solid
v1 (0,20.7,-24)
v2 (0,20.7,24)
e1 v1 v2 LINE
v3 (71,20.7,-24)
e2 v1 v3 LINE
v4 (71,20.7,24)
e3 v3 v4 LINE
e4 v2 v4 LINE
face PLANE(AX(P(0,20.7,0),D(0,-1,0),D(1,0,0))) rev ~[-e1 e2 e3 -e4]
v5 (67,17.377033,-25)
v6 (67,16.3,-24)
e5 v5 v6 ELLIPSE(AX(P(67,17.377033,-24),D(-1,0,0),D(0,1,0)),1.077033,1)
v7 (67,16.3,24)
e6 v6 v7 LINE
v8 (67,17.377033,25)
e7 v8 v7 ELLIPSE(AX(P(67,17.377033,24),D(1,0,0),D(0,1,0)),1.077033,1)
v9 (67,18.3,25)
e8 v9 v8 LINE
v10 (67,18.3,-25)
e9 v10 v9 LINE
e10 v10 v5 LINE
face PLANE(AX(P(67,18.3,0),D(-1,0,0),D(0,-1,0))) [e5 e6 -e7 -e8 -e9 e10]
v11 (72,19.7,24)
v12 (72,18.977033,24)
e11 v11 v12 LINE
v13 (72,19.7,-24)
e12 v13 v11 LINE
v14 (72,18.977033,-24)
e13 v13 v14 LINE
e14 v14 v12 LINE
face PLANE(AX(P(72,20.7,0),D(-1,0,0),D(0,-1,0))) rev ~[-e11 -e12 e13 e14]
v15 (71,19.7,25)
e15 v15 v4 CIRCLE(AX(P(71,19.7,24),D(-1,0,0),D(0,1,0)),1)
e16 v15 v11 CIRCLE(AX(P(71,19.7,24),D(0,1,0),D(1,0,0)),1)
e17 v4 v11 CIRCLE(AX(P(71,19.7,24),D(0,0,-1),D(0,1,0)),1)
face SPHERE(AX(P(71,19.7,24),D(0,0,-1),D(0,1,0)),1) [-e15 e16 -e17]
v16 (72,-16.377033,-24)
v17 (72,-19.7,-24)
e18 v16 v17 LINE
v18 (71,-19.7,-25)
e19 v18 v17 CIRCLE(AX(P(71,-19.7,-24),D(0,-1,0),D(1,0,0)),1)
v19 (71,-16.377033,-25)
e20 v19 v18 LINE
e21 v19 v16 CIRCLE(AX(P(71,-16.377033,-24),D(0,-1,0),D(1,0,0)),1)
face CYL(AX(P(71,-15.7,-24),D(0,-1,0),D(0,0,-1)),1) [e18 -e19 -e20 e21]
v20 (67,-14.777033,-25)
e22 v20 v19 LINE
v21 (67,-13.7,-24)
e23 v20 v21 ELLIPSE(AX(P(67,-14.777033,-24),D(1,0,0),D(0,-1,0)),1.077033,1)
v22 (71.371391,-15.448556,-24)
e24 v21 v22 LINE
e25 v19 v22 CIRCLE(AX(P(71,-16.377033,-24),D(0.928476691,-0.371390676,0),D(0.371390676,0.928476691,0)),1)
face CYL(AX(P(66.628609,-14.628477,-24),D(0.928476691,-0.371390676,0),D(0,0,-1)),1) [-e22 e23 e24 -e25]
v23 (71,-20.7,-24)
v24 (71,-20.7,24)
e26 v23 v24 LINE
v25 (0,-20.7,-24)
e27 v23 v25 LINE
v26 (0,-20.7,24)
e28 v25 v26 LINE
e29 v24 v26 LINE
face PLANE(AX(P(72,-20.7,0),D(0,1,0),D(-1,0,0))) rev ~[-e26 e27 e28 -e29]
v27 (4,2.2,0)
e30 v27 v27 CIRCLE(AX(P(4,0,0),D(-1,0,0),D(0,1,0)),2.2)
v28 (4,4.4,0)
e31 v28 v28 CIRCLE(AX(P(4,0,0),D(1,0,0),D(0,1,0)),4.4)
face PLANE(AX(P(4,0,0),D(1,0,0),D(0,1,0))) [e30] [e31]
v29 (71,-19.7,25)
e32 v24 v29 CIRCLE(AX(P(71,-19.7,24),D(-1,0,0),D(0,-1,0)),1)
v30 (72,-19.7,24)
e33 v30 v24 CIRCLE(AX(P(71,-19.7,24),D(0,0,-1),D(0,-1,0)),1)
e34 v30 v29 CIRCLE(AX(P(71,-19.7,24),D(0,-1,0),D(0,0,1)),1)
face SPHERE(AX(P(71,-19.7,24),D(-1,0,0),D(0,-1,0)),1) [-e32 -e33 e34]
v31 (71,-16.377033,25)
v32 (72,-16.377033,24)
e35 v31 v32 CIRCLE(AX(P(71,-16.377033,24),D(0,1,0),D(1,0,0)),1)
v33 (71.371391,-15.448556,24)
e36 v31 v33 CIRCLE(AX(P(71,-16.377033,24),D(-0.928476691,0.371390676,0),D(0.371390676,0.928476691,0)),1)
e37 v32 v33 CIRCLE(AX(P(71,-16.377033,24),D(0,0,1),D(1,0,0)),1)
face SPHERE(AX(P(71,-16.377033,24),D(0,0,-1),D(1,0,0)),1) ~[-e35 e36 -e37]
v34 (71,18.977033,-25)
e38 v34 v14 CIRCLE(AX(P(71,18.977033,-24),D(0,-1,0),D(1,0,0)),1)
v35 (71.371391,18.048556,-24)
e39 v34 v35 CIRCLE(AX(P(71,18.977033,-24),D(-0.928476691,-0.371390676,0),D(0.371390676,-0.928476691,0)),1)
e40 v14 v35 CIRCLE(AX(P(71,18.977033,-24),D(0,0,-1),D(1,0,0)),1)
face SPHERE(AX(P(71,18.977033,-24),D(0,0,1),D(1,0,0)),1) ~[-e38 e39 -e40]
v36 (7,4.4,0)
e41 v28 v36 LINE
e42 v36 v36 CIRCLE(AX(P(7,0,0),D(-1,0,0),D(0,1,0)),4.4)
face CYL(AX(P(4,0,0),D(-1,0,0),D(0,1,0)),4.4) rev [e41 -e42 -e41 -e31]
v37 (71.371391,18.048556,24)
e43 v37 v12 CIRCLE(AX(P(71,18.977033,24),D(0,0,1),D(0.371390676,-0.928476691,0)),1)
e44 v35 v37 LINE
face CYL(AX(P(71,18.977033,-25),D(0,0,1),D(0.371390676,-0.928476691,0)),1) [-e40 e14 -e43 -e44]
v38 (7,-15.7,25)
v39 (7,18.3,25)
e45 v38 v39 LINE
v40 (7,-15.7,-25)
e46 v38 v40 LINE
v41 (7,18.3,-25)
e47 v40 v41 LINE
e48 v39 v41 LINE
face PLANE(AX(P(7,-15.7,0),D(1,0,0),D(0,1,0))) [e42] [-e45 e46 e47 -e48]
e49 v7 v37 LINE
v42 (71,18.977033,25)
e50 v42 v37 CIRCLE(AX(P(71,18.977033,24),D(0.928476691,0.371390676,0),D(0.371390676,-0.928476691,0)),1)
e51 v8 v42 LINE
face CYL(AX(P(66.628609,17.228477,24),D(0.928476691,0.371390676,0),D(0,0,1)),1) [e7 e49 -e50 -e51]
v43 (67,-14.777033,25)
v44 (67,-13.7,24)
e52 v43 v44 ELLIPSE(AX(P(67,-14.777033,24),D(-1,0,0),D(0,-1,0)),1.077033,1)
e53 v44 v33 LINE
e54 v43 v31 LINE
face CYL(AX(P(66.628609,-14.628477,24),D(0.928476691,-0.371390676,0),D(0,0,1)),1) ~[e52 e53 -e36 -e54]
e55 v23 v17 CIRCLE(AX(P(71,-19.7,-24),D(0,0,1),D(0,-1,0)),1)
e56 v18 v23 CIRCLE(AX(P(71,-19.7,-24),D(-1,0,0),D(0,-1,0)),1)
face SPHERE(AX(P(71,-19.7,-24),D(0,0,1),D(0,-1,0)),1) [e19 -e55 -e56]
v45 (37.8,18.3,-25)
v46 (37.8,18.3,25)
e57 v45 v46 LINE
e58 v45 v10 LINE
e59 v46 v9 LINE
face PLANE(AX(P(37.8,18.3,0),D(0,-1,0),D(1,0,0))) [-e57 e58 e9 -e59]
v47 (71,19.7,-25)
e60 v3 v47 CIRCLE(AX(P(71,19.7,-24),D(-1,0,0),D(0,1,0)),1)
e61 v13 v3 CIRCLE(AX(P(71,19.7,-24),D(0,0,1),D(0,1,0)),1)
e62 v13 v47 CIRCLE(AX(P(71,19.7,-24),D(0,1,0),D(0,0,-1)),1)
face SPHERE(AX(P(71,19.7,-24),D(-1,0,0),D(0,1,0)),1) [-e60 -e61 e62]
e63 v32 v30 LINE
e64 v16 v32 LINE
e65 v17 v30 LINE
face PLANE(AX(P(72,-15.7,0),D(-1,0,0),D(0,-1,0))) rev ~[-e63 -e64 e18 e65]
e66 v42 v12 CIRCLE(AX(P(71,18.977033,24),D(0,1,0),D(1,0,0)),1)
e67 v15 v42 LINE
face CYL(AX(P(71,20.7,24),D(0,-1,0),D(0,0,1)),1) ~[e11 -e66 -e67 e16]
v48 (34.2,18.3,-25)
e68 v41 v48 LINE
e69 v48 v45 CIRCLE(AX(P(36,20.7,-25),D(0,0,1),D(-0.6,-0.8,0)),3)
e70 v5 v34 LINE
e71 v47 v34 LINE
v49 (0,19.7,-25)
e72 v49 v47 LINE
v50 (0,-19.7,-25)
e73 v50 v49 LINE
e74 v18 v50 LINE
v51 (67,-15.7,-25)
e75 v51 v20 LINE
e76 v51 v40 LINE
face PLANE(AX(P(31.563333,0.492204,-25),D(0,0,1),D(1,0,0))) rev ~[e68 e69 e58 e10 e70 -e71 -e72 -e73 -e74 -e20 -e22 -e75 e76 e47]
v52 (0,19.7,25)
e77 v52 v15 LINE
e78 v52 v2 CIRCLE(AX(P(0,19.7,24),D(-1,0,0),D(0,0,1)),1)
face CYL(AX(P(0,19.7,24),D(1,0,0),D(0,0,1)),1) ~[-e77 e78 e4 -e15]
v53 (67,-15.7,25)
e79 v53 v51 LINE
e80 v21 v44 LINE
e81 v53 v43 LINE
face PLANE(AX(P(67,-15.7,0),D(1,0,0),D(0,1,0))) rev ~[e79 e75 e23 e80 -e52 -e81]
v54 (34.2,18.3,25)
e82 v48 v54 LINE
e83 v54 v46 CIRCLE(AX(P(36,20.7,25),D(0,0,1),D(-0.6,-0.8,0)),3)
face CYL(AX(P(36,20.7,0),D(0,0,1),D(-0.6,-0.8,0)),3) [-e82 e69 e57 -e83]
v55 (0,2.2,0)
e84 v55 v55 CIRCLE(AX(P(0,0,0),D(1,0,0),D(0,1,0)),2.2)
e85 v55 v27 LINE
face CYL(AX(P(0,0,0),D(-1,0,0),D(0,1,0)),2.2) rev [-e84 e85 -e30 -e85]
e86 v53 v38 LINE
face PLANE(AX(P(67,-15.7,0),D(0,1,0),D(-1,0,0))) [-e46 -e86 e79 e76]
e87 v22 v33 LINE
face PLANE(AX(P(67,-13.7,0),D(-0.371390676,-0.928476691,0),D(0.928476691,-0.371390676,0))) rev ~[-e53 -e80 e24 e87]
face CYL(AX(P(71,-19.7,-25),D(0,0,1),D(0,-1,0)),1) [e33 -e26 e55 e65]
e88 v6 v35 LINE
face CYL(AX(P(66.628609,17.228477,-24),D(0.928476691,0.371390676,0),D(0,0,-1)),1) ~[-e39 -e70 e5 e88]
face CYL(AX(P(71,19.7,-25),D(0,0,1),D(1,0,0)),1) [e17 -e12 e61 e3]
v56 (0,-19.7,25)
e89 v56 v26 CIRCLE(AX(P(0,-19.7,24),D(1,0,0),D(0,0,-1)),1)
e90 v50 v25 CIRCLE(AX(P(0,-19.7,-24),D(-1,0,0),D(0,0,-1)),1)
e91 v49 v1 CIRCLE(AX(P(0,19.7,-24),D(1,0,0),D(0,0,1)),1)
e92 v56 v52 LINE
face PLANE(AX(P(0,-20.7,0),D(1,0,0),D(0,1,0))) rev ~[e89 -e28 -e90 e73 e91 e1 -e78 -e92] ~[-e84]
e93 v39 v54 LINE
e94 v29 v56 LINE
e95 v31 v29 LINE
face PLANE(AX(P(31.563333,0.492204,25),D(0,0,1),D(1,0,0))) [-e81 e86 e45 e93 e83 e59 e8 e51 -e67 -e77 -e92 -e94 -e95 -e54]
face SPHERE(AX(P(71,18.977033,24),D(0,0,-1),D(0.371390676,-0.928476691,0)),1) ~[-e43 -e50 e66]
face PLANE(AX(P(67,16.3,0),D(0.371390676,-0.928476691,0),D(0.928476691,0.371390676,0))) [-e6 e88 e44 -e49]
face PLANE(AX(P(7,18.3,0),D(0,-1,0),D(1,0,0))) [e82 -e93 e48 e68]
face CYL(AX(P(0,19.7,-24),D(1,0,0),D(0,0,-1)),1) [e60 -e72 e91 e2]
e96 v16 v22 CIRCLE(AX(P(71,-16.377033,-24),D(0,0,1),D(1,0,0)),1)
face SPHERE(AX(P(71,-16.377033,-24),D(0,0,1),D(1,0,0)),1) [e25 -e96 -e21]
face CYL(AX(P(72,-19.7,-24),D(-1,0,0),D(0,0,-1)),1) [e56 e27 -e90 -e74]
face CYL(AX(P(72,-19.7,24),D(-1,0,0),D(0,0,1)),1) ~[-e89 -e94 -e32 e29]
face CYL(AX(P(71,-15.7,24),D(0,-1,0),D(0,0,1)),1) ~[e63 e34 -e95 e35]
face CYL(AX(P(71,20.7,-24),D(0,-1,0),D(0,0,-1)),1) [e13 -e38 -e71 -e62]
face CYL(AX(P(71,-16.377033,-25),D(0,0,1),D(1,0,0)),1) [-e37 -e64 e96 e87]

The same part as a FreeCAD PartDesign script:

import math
import FreeCAD as App
import Part
import Sketcher

V = App.Vector
Q = App.Units.Quantity


def edges_at(feature, points):
    """Names of the edges that pass closest to the given points."""
    edges = feature.Shape.Edges
    near = lambda p: min(range(len(edges)), key=lambda i: edges[i].distToShape(Part.Vertex(*p))[0])
    return sorted({f"Edge{near(p) + 1}" for p in points})

doc = App.newDocument("Part")
body = doc.addObject("PartDesign::Body", "Body")

# Sketch on XY plane
sketch1 = doc.addObject("Sketcher::SketchObject", "Sketch")
body.addObject(sketch1)
sketch1.AttachmentSupport = (doc.XY_Plane, [""])
sketch1.MapMode = "FlatFace"
sketch1.addGeometry([
    Part.LineSegment(V(7, 18.3, 0), V(34.2, 18.3, 0)),  # 0
    Part.ArcOfCircle(Part.Circle(V(36, 20.7, 0), V(0, 0, 1), 3), math.radians(-127), math.radians(-53)),  # 1
    Part.LineSegment(V(37.8, 18.3, 0), V(67, 18.3, 0)),  # 2
    Part.LineSegment(V(67, 18.3, 0), V(67, 16.3, 0)),  # 3
    Part.LineSegment(V(67, 16.3, 0), V(72, 18.3, 0)),  # 4
    Part.LineSegment(V(72, 18.3, 0), V(72, 20.7, 0)),  # 5
    Part.LineSegment(V(72, 20.7, 0), V(0, 20.7, 0)),  # 6
    Part.LineSegment(V(0, 20.7, 0), V(0, -20.7, 0)),  # 7
    Part.LineSegment(V(0, -20.7, 0), V(72, -20.7, 0)),  # 8
    Part.LineSegment(V(72, -20.7, 0), V(72, -15.7, 0)),  # 9
    Part.LineSegment(V(72, -15.7, 0), V(67, -13.7, 0)),  # 10
    Part.LineSegment(V(67, -13.7, 0), V(67, -15.7, 0)),  # 11
    Part.LineSegment(V(67, -15.7, 0), V(7, -15.7, 0)),  # 12
    Part.LineSegment(V(7, -15.7, 0), V(7, 18.3, 0)),  # 13
], False)
sketch1.addConstraint([
    Sketcher.Constraint("Coincident", 0, 2, 1, 1),
    Sketcher.Constraint("Coincident", 1, 2, 2, 1),
    Sketcher.Constraint("Coincident", 2, 2, 3, 1),
    Sketcher.Constraint("Coincident", 3, 2, 4, 1),
    Sketcher.Constraint("Coincident", 4, 2, 5, 1),
    Sketcher.Constraint("Coincident", 5, 2, 6, 1),
    Sketcher.Constraint("Coincident", 6, 2, 7, 1),
    Sketcher.Constraint("Coincident", 7, 2, 8, 1),
    Sketcher.Constraint("Coincident", 8, 2, 9, 1),
    Sketcher.Constraint("Coincident", 9, 2, 10, 1),
    Sketcher.Constraint("Coincident", 10, 2, 11, 1),
    Sketcher.Constraint("Coincident", 11, 2, 12, 1),
    Sketcher.Constraint("Coincident", 12, 2, 13, 1),
    Sketcher.Constraint("Coincident", 13, 2, 0, 1),
    Sketcher.Constraint("Horizontal", 0),
    Sketcher.Constraint("Horizontal", 2),
    Sketcher.Constraint("Vertical", 3),
    Sketcher.Constraint("Vertical", 5),
    Sketcher.Constraint("Horizontal", 6),
    Sketcher.Constraint("Vertical", 7),
    Sketcher.Constraint("Horizontal", 8),
    Sketcher.Constraint("Vertical", 9),
    Sketcher.Constraint("Vertical", 11),
    Sketcher.Constraint("Horizontal", 12),
    Sketcher.Constraint("Vertical", 13),
    Sketcher.Constraint("Symmetric", 6, 2, 7, 2, -1, 1),
    Sketcher.Constraint("Horizontal", 0, 2, 1, 2),
    Sketcher.Constraint("Horizontal", 2, 2, 4, 2),
    Sketcher.Constraint("Horizontal", 1, 3, 5, 2),
    Sketcher.Constraint("Horizontal", 9, 2, 11, 2),
    Sketcher.Constraint("Vertical", 5, 2, 8, 2),
    Sketcher.Constraint("Vertical", 3, 2, 10, 2),
    Sketcher.Constraint("Equal", 3, 11),
    Sketcher.Constraint("Radius", 1, Q("3 mm")),
    Sketcher.Constraint("DistanceX", 6, 2, 6, 1, Q("72 mm")),
    Sketcher.Constraint("DistanceX", 12, 2, 12, 1, Q("60 mm")),
    Sketcher.Constraint("DistanceY", 3, 2, 3, 1, Q("2 mm")),
    Sketcher.Constraint("DistanceY", 9, 1, 9, 2, Q("5 mm")),
    Sketcher.Constraint("DistanceY", 13, 1, 13, 2, Q("34 mm")),
    Sketcher.Constraint("DistanceX", 0, 1, 0, 2, Q("27.2 mm")),
    Sketcher.Constraint("DistanceX", 2, 1, 2, 2, Q("29.2 mm")),
    Sketcher.Constraint("DistanceX", -1, 1, 1, 3, Q("36 mm")),
])
pad1 = doc.addObject("PartDesign::Pad", "Pad")
body.addObject(pad1)
pad1.Profile = sketch1
pad1.Length = 50
pad1.Midplane = True

# Sketch on YZ plane
sketch2 = doc.addObject("Sketcher::SketchObject", "Sketch001")
body.addObject(sketch2)
sketch2.AttachmentSupport = (doc.YZ_Plane, [""])
sketch2.MapMode = "FlatFace"
sketch2.addGeometry(Part.Circle(V(0, 0, 0), V(0, 0, 1), 2.2), False)
sketch2.addConstraint([
    Sketcher.Constraint("Coincident", 0, 3, -1, 1),
    Sketcher.Constraint("Diameter", 0, Q("4.4 mm")),
])
pocket1 = doc.addObject("PartDesign::Pocket", "Pocket")
body.addObject(pocket1)
pocket1.Profile = sketch2
pocket1.Type = "ThroughAll"
pocket1.Reversed = True

# Sketch on YZ plane
sketch3 = doc.addObject("Sketcher::SketchObject", "Sketch002")
body.addObject(sketch3)
sketch3.AttachmentSupport = (doc.YZ_Plane, [""])
sketch3.MapMode = "FlatFace"
sketch3.AttachmentOffset = App.Placement(V(0, 0, 4), App.Rotation())
sketch3.addGeometry(Part.Circle(V(0, 0, 0), V(0, 0, 1), 4.4), False)
sketch3.addConstraint([
    Sketcher.Constraint("Coincident", 0, 3, -1, 1),
    Sketcher.Constraint("Diameter", 0, Q("8.8 mm")),
])
pocket2 = doc.addObject("PartDesign::Pocket", "Pocket001")
body.addObject(pocket2)
pocket2.Profile = sketch3
pocket2.Type = "ThroughAll"
pocket2.Reversed = True
doc.recompute()

fillet = doc.addObject("PartDesign::Fillet", "Fillet")
body.addObject(fillet)
fillet.Base = (pocket2, edges_at(pocket2, [
    (36, 20.7, -25),
    (72, 20.7, 0),
    (36, 20.7, 25),
    (36, -20.7, 25),
    (72, -20.7, 0),
    (36, -20.7, -25),
    (72, -15.7, 0),
    (72, 18.3, 0),
    (72, 19.5, -25),
    (72, -18.2, -25),
    (69.5, -14.7, -25),
    (72, -18.2, 25),
    (69.5, 17.3, -25),
    (69.5, 17.3, 25),
    (72, 19.5, 25),
    (69.5, -14.7, 25),
]))
fillet.Radius = 1

doc.recompute()
